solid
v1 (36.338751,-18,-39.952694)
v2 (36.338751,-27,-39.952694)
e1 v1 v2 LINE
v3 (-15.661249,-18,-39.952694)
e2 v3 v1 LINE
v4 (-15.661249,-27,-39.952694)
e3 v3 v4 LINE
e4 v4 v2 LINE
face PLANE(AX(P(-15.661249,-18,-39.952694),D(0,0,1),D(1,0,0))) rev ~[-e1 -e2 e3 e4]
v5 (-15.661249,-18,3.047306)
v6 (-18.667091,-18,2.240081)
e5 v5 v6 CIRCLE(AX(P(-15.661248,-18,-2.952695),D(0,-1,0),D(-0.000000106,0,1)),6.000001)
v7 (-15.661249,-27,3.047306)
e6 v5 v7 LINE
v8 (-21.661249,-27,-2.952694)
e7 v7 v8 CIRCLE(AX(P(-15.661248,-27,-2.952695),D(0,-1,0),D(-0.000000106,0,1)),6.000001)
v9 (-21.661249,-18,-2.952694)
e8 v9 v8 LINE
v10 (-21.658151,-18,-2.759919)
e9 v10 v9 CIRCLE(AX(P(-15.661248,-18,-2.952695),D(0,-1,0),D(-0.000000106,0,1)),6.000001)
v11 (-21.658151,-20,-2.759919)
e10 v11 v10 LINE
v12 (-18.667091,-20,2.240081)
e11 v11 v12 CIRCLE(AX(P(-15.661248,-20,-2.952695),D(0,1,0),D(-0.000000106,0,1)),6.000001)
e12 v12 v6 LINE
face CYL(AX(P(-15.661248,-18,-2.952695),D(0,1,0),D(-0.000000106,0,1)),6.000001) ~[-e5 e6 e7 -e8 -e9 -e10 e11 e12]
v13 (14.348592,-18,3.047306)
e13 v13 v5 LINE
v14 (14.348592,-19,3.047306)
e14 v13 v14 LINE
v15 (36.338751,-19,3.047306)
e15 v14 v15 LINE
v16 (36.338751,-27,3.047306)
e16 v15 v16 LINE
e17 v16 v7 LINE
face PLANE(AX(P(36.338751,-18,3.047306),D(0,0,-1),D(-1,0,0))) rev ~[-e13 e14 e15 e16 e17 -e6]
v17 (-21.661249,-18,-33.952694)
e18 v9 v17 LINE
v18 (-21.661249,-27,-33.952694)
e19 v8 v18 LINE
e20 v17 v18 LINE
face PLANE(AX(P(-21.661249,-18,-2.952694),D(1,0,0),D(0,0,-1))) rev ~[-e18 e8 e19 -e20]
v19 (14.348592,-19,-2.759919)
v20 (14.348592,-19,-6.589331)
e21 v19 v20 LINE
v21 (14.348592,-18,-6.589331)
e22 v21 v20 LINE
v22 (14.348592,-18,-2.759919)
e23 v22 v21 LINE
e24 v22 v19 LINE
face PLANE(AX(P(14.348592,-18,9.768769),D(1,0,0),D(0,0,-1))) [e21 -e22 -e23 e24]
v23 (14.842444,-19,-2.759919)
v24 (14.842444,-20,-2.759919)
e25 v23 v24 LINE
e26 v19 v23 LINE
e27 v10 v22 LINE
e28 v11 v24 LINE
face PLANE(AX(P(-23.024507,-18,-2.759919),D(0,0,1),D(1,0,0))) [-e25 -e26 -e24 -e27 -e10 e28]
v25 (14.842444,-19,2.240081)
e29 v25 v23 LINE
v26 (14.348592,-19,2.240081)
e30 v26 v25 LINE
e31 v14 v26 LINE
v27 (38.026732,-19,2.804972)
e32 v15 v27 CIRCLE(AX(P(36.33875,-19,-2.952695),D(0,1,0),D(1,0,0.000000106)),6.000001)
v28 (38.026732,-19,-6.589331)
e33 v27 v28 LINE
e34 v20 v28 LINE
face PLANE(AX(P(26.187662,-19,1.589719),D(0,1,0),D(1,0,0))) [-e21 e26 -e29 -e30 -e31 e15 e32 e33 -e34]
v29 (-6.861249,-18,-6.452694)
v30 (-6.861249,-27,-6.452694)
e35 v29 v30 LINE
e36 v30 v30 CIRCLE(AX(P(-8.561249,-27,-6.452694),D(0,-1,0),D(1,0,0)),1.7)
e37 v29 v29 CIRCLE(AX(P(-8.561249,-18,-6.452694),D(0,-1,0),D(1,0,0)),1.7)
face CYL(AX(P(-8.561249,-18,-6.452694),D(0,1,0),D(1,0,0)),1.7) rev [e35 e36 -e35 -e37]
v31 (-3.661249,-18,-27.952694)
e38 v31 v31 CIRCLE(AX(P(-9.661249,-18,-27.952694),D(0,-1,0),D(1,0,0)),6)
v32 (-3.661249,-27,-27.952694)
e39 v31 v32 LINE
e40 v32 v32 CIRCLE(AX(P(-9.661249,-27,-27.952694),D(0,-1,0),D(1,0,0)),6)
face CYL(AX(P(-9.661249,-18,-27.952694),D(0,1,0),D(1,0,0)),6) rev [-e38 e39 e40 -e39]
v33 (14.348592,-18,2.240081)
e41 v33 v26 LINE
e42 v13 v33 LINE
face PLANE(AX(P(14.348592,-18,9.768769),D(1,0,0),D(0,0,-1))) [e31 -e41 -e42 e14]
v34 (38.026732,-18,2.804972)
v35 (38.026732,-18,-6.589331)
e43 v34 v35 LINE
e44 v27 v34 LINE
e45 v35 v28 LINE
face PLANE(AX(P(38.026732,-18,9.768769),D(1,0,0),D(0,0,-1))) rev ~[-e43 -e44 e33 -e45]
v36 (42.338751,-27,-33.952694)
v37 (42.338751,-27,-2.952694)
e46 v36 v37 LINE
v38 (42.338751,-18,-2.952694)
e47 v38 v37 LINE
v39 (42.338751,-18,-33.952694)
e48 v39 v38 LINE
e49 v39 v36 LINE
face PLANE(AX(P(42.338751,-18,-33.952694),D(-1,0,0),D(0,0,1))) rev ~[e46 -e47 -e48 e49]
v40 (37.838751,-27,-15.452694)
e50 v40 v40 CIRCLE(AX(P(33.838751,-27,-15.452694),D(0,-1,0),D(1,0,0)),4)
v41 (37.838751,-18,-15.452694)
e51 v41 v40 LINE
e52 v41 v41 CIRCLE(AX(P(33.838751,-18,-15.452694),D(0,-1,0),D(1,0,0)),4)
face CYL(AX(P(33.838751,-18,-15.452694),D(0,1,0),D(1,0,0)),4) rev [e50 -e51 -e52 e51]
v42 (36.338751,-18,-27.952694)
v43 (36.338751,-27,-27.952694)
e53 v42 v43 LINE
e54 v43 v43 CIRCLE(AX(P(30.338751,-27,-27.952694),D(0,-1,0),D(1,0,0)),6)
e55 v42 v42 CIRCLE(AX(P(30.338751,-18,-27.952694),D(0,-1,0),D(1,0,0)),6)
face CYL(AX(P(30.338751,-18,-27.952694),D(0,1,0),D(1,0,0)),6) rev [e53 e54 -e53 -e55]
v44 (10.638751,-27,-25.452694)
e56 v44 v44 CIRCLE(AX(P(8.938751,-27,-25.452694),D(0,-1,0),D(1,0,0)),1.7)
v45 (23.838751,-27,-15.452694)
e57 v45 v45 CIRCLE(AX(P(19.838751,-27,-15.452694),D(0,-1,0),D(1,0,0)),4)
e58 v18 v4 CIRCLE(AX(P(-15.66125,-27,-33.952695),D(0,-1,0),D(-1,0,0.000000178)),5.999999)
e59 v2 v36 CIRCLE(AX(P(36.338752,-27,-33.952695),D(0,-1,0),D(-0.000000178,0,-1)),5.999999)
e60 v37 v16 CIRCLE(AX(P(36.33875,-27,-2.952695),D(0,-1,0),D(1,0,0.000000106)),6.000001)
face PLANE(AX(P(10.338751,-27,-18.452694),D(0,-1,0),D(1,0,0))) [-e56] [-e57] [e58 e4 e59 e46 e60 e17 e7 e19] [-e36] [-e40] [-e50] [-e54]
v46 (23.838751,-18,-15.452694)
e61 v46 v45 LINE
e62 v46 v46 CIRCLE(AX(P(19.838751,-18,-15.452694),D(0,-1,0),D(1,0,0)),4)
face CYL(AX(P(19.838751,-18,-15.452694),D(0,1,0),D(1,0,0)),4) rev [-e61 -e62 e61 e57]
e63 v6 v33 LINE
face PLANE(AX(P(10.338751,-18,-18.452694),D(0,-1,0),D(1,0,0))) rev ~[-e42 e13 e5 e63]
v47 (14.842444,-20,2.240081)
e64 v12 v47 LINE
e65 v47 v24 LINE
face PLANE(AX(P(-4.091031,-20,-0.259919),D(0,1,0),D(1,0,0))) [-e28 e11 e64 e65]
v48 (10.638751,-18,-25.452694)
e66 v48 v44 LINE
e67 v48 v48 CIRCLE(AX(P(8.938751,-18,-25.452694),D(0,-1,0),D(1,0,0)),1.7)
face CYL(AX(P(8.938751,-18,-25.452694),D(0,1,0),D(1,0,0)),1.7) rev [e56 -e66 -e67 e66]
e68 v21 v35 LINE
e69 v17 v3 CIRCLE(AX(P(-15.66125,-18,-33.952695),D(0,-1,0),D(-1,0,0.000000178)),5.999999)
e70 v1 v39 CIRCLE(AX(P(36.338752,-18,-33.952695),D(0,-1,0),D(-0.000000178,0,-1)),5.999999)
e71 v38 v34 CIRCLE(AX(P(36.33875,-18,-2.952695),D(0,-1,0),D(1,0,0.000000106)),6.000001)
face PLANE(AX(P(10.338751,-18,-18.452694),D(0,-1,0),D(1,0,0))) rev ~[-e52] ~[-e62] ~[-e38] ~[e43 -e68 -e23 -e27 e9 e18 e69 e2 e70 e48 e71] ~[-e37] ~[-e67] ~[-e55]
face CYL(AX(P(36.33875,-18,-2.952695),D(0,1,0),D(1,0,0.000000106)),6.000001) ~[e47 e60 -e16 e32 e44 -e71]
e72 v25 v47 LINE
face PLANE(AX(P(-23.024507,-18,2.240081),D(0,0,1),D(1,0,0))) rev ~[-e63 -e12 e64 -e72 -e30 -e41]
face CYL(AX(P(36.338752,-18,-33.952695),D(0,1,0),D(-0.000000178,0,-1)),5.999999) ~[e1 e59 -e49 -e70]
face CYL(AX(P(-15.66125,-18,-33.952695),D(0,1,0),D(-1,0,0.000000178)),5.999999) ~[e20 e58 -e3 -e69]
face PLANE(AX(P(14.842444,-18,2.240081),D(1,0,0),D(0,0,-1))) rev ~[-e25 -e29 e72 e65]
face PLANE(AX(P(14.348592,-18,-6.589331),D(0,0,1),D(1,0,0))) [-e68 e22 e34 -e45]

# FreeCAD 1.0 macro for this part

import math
import FreeCAD as App
import Part
import Sketcher
from FreeCAD import Vector


def add_polygon(sketch, points):
    """Adds a closed chain of lines whose ends are joined by coincident constraints."""
    first, n = sketch.GeometryCount, len(points)
    for a, b in zip(points, points[1:] + points[:1]):
        sketch.addGeometry(Part.LineSegment(App.Vector(*a, 0), App.Vector(*b, 0)), False)
    for i in range(n):
        sketch.addConstraint(Sketcher.Constraint("Coincident", first + i, 2, first + (i + 1) % n, 1))

doc = App.newDocument("Part")
body = doc.addObject("PartDesign::Body", "Body")

# Sketch on XZ plane
sketch1 = body.newObject("Sketcher::SketchObject", "Sketch")
sketch1.AttachmentSupport = (doc.getObject("XZ_Plane"), [""])
sketch1.MapMode = "FlatFace"
sketch1.addGeometry(Part.LineSegment(Vector(38.838751, 1.547306, 0), Vector(-13.161249, 1.547306, 0)), False)
sketch1.addGeometry(Part.ArcOfCircle(Part.Circle(Vector(-13.161248, -4.452695, 0), Vector(0, 0, 1), 6.000001), math.radians(90.000006), math.radians(179.999994)), False)
sketch1.addGeometry(Part.LineSegment(Vector(-19.161249, -4.452694, 0), Vector(-19.161249, -35.452694, 0)), False)
sketch1.addGeometry(Part.ArcOfCircle(Part.Circle(Vector(-13.16125, -35.452695, 0), Vector(0, 0, 1), 5.999999), math.radians(179.99999), math.radians(270.00001)), False)
sketch1.addGeometry(Part.LineSegment(Vector(-13.161249, -41.452694, 0), Vector(38.838751, -41.452694, 0)), False)
sketch1.addGeometry(Part.ArcOfCircle(Part.Circle(Vector(38.838752, -35.452695, 0), Vector(0, 0, 1), 5.999999), math.radians(-90.00001), math.radians(0.00001)), False)
sketch1.addGeometry(Part.LineSegment(Vector(44.838751, -35.452694, 0), Vector(44.838751, -4.452694, 0)), False)
sketch1.addGeometry(Part.ArcOfCircle(Part.Circle(Vector(38.83875, -4.452695, 0), Vector(0, 0, 1), 6.000001), math.radians(0.000006), math.radians(89.999994)), False)
sketch1.addGeometry(Part.Circle(Vector(-7.161249, -29.452694, 0), Vector(0, 0, 1), 6), False)
sketch1.addGeometry(Part.Circle(Vector(11.438751, -26.952694, 0), Vector(0, 0, 1), 1.7), False)
sketch1.addGeometry(Part.Circle(Vector(32.838751, -29.452694, 0), Vector(0, 0, 1), 6), False)
sketch1.addGeometry(Part.Circle(Vector(-6.061249, -7.952694, 0), Vector(0, 0, 1), 1.7), False)
sketch1.addGeometry(Part.Circle(Vector(22.338751, -16.952694, 0), Vector(0, 0, 1), 4), False)
sketch1.addGeometry(Part.Circle(Vector(36.338751, -16.952694, 0), Vector(0, 0, 1), 4), False)
sketch1.addConstraint(Sketcher.Constraint("Tangent", 0, 2, 1, 1))
sketch1.addConstraint(Sketcher.Constraint("Tangent", 1, 2, 2, 1))
sketch1.addConstraint(Sketcher.Constraint("Tangent", 2, 2, 3, 1))
sketch1.addConstraint(Sketcher.Constraint("Tangent", 3, 2, 4, 1))
sketch1.addConstraint(Sketcher.Constraint("Tangent", 4, 2, 5, 1))
sketch1.addConstraint(Sketcher.Constraint("Tangent", 5, 2, 6, 1))
sketch1.addConstraint(Sketcher.Constraint("Tangent", 6, 2, 7, 1))
sketch1.addConstraint(Sketcher.Constraint("Tangent", 7, 2, 0, 1))
sketch1.addConstraint(Sketcher.Constraint("Horizontal", 0))
sketch1.addConstraint(Sketcher.Constraint("Vertical", 2))
sketch1.addConstraint(Sketcher.Constraint("Horizontal", 4))
sketch1.addConstraint(Sketcher.Constraint("Vertical", 6))
sketch1.addConstraint(Sketcher.Constraint("Equal", 1, 3))
sketch1.addConstraint(Sketcher.Constraint("Equal", 3, 5))
sketch1.addConstraint(Sketcher.Constraint("Equal", 5, 7))
sketch1.addConstraint(Sketcher.Constraint("Equal", 7, 8))
sketch1.addConstraint(Sketcher.Constraint("Equal", 8, 10))
sketch1.addConstraint(Sketcher.Constraint("Equal", 9, 11))
sketch1.addConstraint(Sketcher.Constraint("Equal", 12, 13))
sketch1.addConstraint(Sketcher.Constraint("Horizontal", 8, 3, 10, 3))
sketch1.addConstraint(Sketcher.Constraint("Horizontal", 12, 3, 13, 3))
sketch1.addConstraint(Sketcher.Constraint("Diameter", 8, 12.0))
sketch1.addConstraint(Sketcher.Constraint("Diameter", 12, 8.0))
sketch1.addConstraint(Sketcher.Constraint("Diameter", 9, 3.4))
sketch1.addConstraint(Sketcher.Constraint("DistanceX", 0, 2, 0, 1, 52.0))
sketch1.addConstraint(Sketcher.Constraint("DistanceY", 2, 2, 2, 1, 31.0))
sketch1.addConstraint(Sketcher.Constraint("DistanceX", 3, 3, 8, 3, 6.000001))
sketch1.addConstraint(Sketcher.Constraint("DistanceY", 3, 3, 8, 3, 6.000001))
sketch1.addConstraint(Sketcher.Constraint("DistanceX", 10, 3, 5, 3, 6.000001))
sketch1.addConstraint(Sketcher.Constraint("DistanceY", 9, 3, 11, 3, 19.0))
sketch1.addConstraint(Sketcher.Constraint("DistanceY", 9, 3, 12, 3, 10.0))
sketch1.addConstraint(Sketcher.Constraint("DistanceX", 12, 3, 13, 3, 14.0))
sketch1.addConstraint(Sketcher.Constraint("DistanceX", 8, 3, 9, 3, 18.6))
sketch1.addConstraint(Sketcher.Constraint("DistanceY", 8, 3, 9, 3, 2.5))
sketch1.addConstraint(Sketcher.Constraint("DistanceX", 1, 3, 11, 3, 7.099999))
sketch1.addConstraint(Sketcher.Constraint("DistanceX", 9, 3, 12, 3, 10.9))
sketch1.addConstraint(Sketcher.Constraint("DistanceX", 1, 3, -1, 1, 13.161248))
sketch1.addConstraint(Sketcher.Constraint("DistanceY", 1, 3, -1, 1, 4.452695))
pad1 = body.newObject("PartDesign::Pad", "Pad")
pad1.Profile = sketch1
pad1.Length = 9

# Sketch on XZ plane
sketch2 = body.newObject("Sketcher::SketchObject", "Sketch001")
sketch2.AttachmentSupport = (doc.getObject("XZ_Plane"), [""])
sketch2.MapMode = "FlatFace"
add_polygon(sketch2, [(16.848592, -8.089331), (16.848592, 8.268769), (40.526732, 8.268769), (40.526732, -8.089331)])  # lines 0-3
sketch2.addConstraint(Sketcher.Constraint("Vertical", 0))
sketch2.addConstraint(Sketcher.Constraint("Horizontal", 1))
sketch2.addConstraint(Sketcher.Constraint("Vertical", 2))
sketch2.addConstraint(Sketcher.Constraint("Horizontal", 3))
sketch2.addConstraint(Sketcher.Constraint("DistanceY", 0, 1, 0, 2, 16.3581))
sketch2.addConstraint(Sketcher.Constraint("DistanceX", 1, 1, 1, 2, 23.67814))
sketch2.addConstraint(Sketcher.Constraint("DistanceX", -1, 1, 0, 2, 16.848592))
sketch2.addConstraint(Sketcher.Constraint("DistanceY", -1, 1, 0, 2, 8.268769))
pocket1 = body.newObject("PartDesign::Pocket", "Pocket")
pocket1.Profile = sketch2
pocket1.Length = 1
pocket1.Reversed = True

# Sketch on XZ plane
sketch3 = body.newObject("Sketcher::SketchObject", "Sketch002")
sketch3.AttachmentSupport = (doc.getObject("XZ_Plane"), [""])
sketch3.MapMode = "FlatFace"
add_polygon(sketch3, [(-20.524507, -4.259919), (-20.524507, 0.740081), (17.342444, 0.740081), (17.342444, -4.259919)])  # lines 0-3
sketch3.addConstraint(Sketcher.Constraint("Vertical", 0))
sketch3.addConstraint(Sketcher.Constraint("Horizontal", 1))
sketch3.addConstraint(Sketcher.Constraint("Vertical", 2))
sketch3.addConstraint(Sketcher.Constraint("Horizontal", 3))
sketch3.addConstraint(Sketcher.Constraint("DistanceY", 0, 1, 0, 2, 5.0))
sketch3.addConstraint(Sketcher.Constraint("DistanceX", 1, 1, 1, 2, 37.866951))
sketch3.addConstraint(Sketcher.Constraint("DistanceY", -1, 1, 0, 2, 0.740081))
sketch3.addConstraint(Sketcher.Constraint("DistanceX", 0, 2, -1, 1, 20.524507))
pocket2 = body.newObject("PartDesign::Pocket", "Pocket001")
pocket2.Profile = sketch3
pocket2.Length = 2
pocket2.Reversed = True
body2 = doc.addObject("PartDesign::Body", "Body001")
doc.recompute()

body.Placement = App.Placement(Vector(-2.5, -18, 1.5), App.Rotation(Vector(0, 0, 1), 0))
boolean = body2.newObject("PartDesign::Boolean", "Boolean")
boolean.Type = "Fuse"
boolean.addObjects([body])

doc.recompute()
